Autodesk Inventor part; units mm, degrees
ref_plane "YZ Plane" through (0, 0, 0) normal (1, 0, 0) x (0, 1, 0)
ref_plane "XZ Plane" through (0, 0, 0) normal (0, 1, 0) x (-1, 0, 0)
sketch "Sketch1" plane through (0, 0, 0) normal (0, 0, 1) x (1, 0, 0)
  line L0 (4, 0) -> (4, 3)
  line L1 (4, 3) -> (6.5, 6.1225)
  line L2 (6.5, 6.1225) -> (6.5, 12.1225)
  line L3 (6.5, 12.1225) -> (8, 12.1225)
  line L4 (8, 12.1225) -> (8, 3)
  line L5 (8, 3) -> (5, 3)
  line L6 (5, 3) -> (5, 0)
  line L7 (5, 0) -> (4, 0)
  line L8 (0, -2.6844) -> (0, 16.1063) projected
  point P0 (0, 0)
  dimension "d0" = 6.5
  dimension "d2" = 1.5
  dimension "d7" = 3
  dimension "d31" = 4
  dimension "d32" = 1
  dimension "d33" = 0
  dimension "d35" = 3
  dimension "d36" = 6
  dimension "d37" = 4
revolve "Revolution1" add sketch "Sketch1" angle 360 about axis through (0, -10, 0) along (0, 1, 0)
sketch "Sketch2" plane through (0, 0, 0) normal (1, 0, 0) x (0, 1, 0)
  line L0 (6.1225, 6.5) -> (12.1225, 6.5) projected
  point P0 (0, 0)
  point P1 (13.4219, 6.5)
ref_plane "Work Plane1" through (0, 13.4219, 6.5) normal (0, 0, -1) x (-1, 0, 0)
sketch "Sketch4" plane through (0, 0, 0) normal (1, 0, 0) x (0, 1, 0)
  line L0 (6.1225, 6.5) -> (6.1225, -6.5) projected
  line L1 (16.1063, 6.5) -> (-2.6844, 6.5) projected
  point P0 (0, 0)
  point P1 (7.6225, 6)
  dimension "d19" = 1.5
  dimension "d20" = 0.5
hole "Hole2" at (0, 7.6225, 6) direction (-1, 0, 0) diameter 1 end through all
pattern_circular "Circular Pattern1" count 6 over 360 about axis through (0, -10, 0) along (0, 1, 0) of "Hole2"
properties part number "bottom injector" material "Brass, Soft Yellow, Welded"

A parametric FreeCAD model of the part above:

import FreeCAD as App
import Part
import Sketcher
Q = App.Units.Quantity

doc = App.newDocument("Part")
body = doc.addObject("PartDesign::Body", "Body")

sketch1 = body.newObject("Sketcher::SketchObject", "Sketch")
sketch1.AttachmentSupport = (doc.getObject("XY_Plane"), [""])
sketch1.MapMode = "FlatFace"
sketch1.addGeometry(Part.LineSegment(App.Vector(4, 3, 0), App.Vector(4, 0, 0)), False)
sketch1.addGeometry(Part.LineSegment(App.Vector(4, 0, 0), App.Vector(5, 0, 0)), False)
sketch1.addGeometry(Part.LineSegment(App.Vector(5, 0, 0), App.Vector(5, 3, 0)), False)
sketch1.addGeometry(Part.LineSegment(App.Vector(5, 3, 0), App.Vector(8, 3, 0)), False)
sketch1.addGeometry(Part.LineSegment(App.Vector(8, 3, 0), App.Vector(8, 12.1, 0)), False)
sketch1.addGeometry(Part.LineSegment(App.Vector(8, 12.1, 0), App.Vector(6.5, 12.1, 0)), False)
sketch1.addGeometry(Part.LineSegment(App.Vector(6.5, 12.1, 0), App.Vector(6.5, 6.1, 0)), False)
sketch1.addGeometry(Part.LineSegment(App.Vector(6.5, 6.1, 0), App.Vector(4, 3, 0)), False)
sketch1.addConstraint(Sketcher.Constraint("Coincident", 0, 2, 1, 1))
sketch1.addConstraint(Sketcher.Constraint("Coincident", 1, 2, 2, 1))
sketch1.addConstraint(Sketcher.Constraint("Coincident", 2, 2, 3, 1))
sketch1.addConstraint(Sketcher.Constraint("Coincident", 3, 2, 4, 1))
sketch1.addConstraint(Sketcher.Constraint("Coincident", 4, 2, 5, 1))
sketch1.addConstraint(Sketcher.Constraint("Coincident", 5, 2, 6, 1))
sketch1.addConstraint(Sketcher.Constraint("Coincident", 6, 2, 7, 1))
sketch1.addConstraint(Sketcher.Constraint("Coincident", 7, 2, 0, 1))
sketch1.addConstraint(Sketcher.Constraint("Vertical", 0))
sketch1.addConstraint(Sketcher.Constraint("Horizontal", 1))
sketch1.addConstraint(Sketcher.Constraint("Vertical", 2))
sketch1.addConstraint(Sketcher.Constraint("Horizontal", 3))
sketch1.addConstraint(Sketcher.Constraint("Vertical", 4))
sketch1.addConstraint(Sketcher.Constraint("Horizontal", 5))
sketch1.addConstraint(Sketcher.Constraint("Vertical", 6))
sketch1.addConstraint(Sketcher.Constraint("PointOnObject", 0, 2, -1))
sketch1.addConstraint(Sketcher.Constraint("Horizontal", 3, 2, 7, 2))
sketch1.addConstraint(Sketcher.Constraint("Equal", 3, 0))
sketch1.addConstraint(Sketcher.Constraint("DistanceX", 1, 1, 1, 2, Q("1 mm")))
sketch1.addConstraint(Sketcher.Constraint("DistanceX", 3, 1, 3, 2, Q("3 mm")))
sketch1.addConstraint(Sketcher.Constraint("DistanceY", 6, 2, 6, 1, Q("6 mm")))
sketch1.addConstraint(Sketcher.Constraint("Distance", 7, Q("4 mm")))
sketch1.addConstraint(Sketcher.Constraint("DistanceX", 5, 2, 5, 1, Q("1.5 mm")))
sketch1.addConstraint(Sketcher.Constraint("DistanceX", -1, 1, 0, 2, Q("4 mm")))
revolution = body.newObject("PartDesign::Revolution", "Revolution")
revolution.Profile = sketch1
revolution.ReferenceAxis = (sketch1, ["V_Axis"])
revolution.Angle = 360

sketch2 = body.newObject("Sketcher::SketchObject", "Sketch001")
sketch2.AttachmentSupport = (doc.getObject("YZ_Plane"), [""])
sketch2.MapMode = "FlatFace"
sketch2.addGeometry(Part.Circle(App.Vector(7.6, 6, 0), App.Vector(0, 0, 1), 0.5), False)
sketch2.addConstraint(Sketcher.Constraint("Diameter", 0, Q("1 mm")))
sketch2.addConstraint(Sketcher.Constraint("DistanceY", -1, 1, 0, 3, Q("6 mm")))
sketch2.addConstraint(Sketcher.Constraint("DistanceX", -1, 1, 0, 3, Q("7.6225 mm")))
doc.recompute()
hole = body.newObject("PartDesign::Hole", "Hole")
hole.Profile = sketch2
hole.ThreadType = "None"
hole.Diameter = 1
hole.DepthType = "ThroughAll"
doc.recompute()

polarpattern = body.newObject("PartDesign::PolarPattern", "PolarPattern")
polarpattern.Originals = [hole]
polarpattern.Axis = (doc.getObject("Y_Axis"), [""])
polarpattern.Angle = 360
polarpattern.Occurrences = 6
body.Tip = polarpattern

doc.recompute()
